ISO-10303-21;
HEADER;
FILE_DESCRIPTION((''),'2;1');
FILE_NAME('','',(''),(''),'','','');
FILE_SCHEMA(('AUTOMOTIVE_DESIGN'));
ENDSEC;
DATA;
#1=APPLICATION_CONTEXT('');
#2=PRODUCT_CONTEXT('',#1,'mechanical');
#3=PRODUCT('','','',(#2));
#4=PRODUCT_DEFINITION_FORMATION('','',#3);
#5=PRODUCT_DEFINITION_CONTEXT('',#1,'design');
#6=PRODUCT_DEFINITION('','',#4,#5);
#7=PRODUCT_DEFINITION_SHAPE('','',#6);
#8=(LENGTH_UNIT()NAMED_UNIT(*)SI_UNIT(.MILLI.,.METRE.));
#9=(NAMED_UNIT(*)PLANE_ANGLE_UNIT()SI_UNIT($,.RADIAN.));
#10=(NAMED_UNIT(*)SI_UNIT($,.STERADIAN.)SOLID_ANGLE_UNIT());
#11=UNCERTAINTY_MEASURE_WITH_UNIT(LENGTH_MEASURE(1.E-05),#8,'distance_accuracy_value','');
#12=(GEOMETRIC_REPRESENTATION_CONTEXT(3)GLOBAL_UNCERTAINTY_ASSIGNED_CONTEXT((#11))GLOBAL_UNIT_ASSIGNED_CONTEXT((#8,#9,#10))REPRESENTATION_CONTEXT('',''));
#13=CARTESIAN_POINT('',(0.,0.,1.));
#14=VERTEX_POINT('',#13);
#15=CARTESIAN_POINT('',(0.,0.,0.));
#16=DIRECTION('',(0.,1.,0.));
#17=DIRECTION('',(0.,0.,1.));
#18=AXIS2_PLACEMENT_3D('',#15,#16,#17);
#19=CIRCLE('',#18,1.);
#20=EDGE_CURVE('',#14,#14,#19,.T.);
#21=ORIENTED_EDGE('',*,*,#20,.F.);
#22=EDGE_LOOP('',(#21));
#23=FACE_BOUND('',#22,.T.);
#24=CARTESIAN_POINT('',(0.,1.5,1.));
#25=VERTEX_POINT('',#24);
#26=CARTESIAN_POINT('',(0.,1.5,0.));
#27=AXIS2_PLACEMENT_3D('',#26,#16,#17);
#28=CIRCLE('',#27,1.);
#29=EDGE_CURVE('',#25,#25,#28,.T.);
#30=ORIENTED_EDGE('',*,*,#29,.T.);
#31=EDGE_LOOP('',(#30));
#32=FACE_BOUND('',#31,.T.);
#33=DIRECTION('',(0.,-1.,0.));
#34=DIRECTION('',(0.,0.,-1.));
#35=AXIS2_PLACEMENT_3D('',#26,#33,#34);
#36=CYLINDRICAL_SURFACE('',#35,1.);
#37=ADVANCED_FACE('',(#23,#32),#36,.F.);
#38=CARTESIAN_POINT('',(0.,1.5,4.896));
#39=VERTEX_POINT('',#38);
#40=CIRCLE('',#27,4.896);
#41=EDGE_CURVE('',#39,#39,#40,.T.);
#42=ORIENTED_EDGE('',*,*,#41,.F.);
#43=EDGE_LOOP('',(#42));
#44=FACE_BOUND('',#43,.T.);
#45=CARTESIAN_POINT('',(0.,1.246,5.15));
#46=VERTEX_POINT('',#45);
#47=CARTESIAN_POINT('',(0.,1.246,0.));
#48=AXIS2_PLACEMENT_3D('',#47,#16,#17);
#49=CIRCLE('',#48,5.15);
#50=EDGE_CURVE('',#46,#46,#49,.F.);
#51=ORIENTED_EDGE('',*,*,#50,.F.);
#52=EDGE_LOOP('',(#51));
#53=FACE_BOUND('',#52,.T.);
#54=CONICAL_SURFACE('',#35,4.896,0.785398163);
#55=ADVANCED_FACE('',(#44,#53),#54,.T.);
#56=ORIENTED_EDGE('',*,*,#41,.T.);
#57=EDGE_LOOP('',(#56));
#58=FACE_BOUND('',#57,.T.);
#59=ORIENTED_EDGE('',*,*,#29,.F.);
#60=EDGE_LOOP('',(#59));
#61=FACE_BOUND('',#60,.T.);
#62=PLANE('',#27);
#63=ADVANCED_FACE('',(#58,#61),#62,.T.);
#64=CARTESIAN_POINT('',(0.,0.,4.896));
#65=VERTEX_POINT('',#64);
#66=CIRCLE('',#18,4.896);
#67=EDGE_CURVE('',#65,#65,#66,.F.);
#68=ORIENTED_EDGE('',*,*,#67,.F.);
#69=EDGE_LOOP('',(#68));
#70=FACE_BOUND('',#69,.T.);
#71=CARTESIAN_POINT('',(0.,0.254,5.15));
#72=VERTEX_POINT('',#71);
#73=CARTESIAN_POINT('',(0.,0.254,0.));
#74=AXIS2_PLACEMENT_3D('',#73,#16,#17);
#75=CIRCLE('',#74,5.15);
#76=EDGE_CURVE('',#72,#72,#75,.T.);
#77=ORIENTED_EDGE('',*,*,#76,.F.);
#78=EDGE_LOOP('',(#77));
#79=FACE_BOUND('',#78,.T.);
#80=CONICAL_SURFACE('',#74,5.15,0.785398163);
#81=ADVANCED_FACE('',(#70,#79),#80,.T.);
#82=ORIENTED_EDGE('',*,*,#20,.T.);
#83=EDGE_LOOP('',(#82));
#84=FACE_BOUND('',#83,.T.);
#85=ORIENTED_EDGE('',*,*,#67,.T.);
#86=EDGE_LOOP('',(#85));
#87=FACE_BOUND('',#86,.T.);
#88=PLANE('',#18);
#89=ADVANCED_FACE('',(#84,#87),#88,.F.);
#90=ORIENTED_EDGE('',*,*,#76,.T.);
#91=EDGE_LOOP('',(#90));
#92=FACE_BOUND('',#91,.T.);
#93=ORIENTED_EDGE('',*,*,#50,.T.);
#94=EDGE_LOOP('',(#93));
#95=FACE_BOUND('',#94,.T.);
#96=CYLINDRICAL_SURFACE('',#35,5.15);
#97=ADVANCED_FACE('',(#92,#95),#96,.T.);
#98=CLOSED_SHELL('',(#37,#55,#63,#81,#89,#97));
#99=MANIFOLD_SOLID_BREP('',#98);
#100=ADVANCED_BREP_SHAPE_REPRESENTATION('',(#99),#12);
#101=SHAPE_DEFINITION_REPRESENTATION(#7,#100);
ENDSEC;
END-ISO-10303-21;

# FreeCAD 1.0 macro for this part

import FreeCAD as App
import Part
import Sketcher


def edges_at(feature, points):
    """Names of the edges that pass closest to the given points."""
    edges = feature.Shape.Edges
    near = lambda p: min(range(len(edges)), key=lambda i: edges[i].distToShape(Part.Vertex(*p))[0])
    return sorted({f"Edge{near(p) + 1}" for p in points})

doc = App.newDocument("Part")
body = doc.addObject("PartDesign::Body", "Body")

# Sketch on XZ plane
sketch1 = body.newObject("Sketcher::SketchObject", "Sketch")
sketch1.AttachmentSupport = (doc.getObject("XZ_Plane"), [""])
sketch1.MapMode = "FlatFace"
sketch1.addGeometry(Part.Circle(App.Vector(0, 0, 0), App.Vector(0, 0, 1), 5.2), False)
sketch1.addGeometry(Part.Circle(App.Vector(0, 0, 0), App.Vector(0, 0, 1), 1), False)
sketch1.addConstraint(Sketcher.Constraint("Coincident", 0, 3, -1, 1))
sketch1.addConstraint(Sketcher.Constraint("Coincident", 1, 3, -1, 1))
sketch1.addConstraint(Sketcher.Constraint("Diameter", 1, 2.0))
sketch1.addConstraint(Sketcher.Constraint("Diameter", 0, 10.3))
pad1 = body.newObject("PartDesign::Pad", "Pad")
pad1.Profile = sketch1
pad1.Length = 1.5
pad1.Reversed = True
doc.recompute()

chamfer = body.newObject("PartDesign::Chamfer", "Chamfer")
chamfer.Base = (pad1, edges_at(pad1, [(0, 0, -5.15), (0, 1.5, -5.15)]))
chamfer.Size = 0.254

doc.recompute()
